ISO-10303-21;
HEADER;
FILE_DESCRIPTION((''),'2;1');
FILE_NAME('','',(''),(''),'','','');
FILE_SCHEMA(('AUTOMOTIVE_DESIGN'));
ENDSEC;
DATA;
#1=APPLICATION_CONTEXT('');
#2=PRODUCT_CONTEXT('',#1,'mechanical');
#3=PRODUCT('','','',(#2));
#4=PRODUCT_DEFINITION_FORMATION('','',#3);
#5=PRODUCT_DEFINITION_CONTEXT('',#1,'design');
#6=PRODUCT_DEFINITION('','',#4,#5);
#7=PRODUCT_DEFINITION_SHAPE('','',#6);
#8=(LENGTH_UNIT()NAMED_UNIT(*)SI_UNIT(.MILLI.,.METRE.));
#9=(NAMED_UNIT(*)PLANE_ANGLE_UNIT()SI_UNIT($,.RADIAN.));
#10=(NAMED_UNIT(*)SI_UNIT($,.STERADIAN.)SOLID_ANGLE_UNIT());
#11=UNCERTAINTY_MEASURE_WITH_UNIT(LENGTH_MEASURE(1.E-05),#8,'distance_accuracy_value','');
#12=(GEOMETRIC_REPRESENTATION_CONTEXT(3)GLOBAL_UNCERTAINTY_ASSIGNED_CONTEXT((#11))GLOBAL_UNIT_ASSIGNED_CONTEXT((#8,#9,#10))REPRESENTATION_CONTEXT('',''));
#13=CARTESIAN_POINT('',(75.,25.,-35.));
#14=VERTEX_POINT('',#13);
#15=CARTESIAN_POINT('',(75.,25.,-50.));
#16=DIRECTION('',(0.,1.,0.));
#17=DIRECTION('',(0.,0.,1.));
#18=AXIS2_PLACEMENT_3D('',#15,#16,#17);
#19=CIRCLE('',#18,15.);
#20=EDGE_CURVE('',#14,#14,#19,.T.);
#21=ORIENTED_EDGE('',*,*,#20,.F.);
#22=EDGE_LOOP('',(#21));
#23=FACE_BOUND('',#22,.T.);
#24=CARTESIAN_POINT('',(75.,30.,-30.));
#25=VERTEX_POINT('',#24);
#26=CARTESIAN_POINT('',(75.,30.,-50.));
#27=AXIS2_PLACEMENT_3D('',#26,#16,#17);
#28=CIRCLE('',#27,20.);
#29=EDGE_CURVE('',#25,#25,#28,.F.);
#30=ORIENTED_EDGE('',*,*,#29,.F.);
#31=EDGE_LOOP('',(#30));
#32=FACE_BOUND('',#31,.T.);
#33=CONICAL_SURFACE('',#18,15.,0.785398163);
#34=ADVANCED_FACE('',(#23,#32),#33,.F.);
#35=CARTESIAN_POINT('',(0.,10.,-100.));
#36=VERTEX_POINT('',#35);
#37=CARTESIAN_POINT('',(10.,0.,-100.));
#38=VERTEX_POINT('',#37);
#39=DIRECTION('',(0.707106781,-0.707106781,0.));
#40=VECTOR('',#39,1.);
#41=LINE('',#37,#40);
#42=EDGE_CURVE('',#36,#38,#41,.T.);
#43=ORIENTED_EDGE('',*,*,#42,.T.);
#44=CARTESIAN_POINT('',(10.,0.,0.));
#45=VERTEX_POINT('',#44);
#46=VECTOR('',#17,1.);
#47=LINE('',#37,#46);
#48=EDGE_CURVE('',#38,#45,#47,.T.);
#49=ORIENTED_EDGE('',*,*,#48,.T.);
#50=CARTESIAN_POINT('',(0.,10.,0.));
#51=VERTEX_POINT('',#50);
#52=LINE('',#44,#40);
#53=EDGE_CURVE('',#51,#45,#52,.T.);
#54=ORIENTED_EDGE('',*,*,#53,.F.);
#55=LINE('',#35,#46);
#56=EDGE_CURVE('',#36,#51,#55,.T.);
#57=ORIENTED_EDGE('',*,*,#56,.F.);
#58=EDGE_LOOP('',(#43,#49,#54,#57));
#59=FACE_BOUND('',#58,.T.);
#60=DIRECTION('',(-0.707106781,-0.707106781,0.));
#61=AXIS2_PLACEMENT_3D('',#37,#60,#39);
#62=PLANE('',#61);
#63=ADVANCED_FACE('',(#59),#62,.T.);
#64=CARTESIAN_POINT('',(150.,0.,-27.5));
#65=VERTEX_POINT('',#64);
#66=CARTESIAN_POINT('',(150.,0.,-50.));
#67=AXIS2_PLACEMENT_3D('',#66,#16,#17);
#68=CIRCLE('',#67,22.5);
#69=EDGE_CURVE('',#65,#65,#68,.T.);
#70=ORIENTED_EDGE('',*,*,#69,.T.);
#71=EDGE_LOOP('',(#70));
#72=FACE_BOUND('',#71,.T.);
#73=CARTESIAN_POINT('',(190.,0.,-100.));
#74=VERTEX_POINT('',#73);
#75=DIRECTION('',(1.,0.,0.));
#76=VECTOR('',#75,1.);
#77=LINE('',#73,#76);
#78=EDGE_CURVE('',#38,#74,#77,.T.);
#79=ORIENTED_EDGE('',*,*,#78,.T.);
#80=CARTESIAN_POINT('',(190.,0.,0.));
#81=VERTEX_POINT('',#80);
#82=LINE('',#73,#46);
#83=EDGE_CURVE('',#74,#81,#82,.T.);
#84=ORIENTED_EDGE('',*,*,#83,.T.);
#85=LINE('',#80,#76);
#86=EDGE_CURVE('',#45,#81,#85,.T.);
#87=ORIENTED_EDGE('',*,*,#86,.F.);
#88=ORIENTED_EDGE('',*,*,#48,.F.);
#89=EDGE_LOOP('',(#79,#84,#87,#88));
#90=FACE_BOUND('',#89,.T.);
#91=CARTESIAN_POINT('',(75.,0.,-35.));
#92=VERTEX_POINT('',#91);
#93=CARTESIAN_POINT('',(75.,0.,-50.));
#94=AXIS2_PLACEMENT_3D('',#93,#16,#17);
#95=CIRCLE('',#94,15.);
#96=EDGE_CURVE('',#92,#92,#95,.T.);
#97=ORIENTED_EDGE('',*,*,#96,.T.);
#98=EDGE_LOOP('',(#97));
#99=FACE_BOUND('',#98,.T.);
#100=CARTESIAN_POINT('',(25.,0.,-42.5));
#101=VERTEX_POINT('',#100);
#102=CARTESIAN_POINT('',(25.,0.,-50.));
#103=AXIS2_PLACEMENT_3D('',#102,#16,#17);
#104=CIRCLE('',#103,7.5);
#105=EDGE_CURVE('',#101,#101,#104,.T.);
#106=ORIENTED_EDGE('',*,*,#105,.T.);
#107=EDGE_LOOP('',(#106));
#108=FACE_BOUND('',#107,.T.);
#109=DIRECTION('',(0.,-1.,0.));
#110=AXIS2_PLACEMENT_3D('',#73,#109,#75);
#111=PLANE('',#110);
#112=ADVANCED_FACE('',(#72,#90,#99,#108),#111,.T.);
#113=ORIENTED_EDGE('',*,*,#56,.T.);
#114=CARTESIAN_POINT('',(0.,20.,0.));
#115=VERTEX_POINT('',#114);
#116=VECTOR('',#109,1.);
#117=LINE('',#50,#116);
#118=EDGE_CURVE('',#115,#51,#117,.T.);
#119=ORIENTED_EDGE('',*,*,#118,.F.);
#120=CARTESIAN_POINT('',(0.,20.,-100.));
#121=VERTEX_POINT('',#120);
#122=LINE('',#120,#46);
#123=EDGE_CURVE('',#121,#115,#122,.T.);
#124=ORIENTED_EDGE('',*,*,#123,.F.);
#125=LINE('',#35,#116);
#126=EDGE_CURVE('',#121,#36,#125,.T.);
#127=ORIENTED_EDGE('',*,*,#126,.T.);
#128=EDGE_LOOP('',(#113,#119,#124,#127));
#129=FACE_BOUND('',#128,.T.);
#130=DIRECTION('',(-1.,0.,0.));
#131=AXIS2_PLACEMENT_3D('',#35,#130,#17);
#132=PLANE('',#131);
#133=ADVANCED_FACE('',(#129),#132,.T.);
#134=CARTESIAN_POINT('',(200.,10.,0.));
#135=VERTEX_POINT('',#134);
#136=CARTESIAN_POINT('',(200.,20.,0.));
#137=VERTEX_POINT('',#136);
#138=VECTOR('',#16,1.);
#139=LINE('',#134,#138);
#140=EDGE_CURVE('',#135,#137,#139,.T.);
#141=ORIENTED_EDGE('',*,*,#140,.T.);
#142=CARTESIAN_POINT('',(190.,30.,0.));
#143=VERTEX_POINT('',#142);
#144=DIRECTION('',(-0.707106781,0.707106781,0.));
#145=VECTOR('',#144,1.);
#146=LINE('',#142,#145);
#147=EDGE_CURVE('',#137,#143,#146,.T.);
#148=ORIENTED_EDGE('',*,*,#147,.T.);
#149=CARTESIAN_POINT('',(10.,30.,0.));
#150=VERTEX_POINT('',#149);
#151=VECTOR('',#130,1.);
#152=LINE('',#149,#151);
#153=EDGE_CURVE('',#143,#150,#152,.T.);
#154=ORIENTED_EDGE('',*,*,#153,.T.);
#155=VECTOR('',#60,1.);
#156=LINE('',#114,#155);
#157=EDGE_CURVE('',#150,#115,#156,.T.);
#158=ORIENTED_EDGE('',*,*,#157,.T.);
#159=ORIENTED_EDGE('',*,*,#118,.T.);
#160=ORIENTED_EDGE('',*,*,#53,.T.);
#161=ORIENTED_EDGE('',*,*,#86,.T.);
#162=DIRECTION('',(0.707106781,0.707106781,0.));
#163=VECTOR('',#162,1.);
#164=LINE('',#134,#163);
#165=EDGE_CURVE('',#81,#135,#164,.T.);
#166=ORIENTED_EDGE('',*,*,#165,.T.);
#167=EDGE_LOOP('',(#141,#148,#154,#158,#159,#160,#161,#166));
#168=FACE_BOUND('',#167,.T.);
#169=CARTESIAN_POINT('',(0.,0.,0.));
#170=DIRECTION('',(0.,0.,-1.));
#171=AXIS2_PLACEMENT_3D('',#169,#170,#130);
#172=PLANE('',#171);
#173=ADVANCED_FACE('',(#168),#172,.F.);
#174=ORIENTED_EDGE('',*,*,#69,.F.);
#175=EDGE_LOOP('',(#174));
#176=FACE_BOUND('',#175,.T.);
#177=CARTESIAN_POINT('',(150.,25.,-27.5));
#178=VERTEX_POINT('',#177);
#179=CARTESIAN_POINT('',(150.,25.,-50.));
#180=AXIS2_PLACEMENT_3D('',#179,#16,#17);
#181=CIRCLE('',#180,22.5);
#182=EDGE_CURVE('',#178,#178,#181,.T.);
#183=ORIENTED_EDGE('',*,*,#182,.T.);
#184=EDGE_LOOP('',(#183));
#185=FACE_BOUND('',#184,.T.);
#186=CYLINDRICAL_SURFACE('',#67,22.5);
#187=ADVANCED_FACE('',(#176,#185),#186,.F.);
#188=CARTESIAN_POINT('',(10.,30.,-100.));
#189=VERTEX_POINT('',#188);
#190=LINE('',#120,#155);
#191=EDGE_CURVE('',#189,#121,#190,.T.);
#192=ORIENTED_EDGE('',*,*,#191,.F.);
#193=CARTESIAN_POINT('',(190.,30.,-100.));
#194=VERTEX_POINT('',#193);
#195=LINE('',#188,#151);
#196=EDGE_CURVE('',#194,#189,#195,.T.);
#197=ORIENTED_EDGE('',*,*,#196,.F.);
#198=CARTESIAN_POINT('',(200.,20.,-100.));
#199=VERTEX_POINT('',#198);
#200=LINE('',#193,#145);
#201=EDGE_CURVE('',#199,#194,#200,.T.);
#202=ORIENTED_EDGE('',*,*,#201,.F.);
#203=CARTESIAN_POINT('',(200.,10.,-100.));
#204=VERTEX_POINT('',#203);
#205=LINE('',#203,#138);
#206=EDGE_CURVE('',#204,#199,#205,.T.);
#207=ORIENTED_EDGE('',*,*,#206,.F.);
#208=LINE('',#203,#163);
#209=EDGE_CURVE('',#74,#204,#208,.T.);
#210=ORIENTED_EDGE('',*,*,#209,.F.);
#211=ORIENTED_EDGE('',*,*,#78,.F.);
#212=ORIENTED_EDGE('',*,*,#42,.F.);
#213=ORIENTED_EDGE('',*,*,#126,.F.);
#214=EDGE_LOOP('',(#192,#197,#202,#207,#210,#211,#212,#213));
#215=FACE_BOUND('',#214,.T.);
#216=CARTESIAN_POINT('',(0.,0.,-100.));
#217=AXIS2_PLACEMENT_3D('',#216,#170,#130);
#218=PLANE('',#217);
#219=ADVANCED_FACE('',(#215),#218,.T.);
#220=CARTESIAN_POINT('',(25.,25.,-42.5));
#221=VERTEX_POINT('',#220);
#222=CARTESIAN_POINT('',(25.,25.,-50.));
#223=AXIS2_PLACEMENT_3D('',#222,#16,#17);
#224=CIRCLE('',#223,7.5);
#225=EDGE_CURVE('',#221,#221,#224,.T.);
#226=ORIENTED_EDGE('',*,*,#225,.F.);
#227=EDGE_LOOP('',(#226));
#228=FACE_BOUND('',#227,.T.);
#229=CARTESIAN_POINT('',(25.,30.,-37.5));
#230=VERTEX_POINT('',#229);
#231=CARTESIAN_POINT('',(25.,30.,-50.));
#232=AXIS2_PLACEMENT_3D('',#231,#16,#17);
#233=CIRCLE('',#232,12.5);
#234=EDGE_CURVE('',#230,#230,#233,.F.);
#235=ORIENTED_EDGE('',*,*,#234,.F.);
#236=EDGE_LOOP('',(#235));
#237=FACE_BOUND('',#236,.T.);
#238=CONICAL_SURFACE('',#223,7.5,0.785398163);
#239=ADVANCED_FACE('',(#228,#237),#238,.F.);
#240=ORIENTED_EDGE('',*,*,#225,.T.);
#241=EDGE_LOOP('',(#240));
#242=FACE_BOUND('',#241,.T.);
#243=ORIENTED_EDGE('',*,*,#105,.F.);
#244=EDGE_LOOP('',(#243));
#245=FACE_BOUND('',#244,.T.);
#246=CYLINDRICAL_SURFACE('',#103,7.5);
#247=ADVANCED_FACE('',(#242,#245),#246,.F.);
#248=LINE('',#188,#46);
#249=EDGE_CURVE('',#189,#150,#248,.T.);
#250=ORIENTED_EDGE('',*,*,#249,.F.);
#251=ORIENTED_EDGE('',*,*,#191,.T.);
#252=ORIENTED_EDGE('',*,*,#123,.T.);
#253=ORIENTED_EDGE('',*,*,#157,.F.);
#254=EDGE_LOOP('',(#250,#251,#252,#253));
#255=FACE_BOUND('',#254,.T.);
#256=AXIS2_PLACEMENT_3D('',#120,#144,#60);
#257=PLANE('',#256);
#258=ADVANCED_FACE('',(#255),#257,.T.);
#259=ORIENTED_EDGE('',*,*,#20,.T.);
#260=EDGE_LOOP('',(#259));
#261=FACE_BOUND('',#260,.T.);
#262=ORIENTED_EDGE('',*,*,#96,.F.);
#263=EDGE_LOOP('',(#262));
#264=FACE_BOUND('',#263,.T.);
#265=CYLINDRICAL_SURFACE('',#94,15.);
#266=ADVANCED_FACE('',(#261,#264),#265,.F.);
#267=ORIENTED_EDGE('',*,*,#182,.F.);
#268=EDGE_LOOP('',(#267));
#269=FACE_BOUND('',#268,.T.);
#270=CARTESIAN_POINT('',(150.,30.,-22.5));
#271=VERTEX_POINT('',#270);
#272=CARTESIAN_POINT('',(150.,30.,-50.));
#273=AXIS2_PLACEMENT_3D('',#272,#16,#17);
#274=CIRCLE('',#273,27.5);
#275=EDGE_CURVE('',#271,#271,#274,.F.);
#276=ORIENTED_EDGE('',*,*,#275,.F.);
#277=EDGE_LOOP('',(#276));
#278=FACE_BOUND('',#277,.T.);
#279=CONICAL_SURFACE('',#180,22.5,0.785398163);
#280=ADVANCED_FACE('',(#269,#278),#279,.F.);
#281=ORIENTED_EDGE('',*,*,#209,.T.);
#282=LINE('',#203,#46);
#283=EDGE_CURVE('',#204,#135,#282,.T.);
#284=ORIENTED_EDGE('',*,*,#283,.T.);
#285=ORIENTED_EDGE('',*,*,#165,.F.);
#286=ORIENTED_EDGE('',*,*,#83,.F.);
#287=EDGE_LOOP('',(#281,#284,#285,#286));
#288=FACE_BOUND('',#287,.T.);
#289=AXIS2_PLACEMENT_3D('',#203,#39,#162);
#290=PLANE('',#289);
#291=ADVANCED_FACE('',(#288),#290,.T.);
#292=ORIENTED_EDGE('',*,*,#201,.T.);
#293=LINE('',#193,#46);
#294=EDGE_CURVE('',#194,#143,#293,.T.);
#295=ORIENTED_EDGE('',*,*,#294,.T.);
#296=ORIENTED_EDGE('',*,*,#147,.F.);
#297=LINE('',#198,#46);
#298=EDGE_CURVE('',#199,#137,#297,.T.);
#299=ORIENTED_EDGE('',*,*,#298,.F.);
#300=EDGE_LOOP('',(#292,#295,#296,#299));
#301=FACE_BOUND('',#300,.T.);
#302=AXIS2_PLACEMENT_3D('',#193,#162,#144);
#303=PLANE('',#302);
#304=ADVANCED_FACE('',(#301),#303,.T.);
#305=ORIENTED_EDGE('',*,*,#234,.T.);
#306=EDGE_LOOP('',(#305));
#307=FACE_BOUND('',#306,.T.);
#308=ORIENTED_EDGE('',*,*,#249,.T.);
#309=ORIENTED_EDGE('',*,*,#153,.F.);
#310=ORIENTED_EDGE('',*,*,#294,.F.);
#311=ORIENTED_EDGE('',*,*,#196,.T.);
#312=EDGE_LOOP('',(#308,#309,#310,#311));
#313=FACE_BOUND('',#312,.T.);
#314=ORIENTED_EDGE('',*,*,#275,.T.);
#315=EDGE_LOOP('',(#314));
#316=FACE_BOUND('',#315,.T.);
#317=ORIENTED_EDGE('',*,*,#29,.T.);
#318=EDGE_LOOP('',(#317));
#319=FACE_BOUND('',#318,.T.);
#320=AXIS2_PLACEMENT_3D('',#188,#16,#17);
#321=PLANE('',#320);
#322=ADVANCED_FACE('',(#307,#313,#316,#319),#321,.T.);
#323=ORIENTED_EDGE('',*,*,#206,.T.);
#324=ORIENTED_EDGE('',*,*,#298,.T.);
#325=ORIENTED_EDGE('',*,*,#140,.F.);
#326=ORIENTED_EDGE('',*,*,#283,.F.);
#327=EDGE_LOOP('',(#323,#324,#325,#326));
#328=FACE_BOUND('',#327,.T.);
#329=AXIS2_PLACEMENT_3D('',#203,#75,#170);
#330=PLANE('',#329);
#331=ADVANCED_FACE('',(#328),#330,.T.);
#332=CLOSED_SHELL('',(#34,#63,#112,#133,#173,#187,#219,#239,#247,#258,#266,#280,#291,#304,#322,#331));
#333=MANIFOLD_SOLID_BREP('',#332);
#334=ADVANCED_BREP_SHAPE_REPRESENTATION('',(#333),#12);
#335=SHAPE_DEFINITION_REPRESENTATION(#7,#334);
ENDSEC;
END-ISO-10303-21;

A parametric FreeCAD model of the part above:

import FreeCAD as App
import Part
import Sketcher

V = App.Vector


def edges_at(feature, points):
    """Names of the edges that pass closest to the given points."""
    edges = feature.Shape.Edges
    near = lambda p: min(range(len(edges)), key=lambda i: edges[i].distToShape(Part.Vertex(*p))[0])
    return sorted({f"Edge{near(p) + 1}" for p in points})

doc = App.newDocument("Part")
body = doc.addObject("PartDesign::Body", "Body")

# Sketch on XY plane
sketch1 = doc.addObject("Sketcher::SketchObject", "Sketch")
body.addObject(sketch1)
sketch1.AttachmentSupport = (doc.XY_Plane, [""])
sketch1.MapMode = "FlatFace"
sketch1.addGeometry([
    Part.LineSegment(V(190, 30, 0), V(10, 30, 0)),  # 0
    Part.LineSegment(V(10, 30, 0), V(0, 20, 0)),  # 1
    Part.LineSegment(V(0, 20, 0), V(0, 10, 0)),  # 2
    Part.LineSegment(V(0, 10, 0), V(10, 0, 0)),  # 3
    Part.LineSegment(V(10, 0, 0), V(190, 0, 0)),  # 4
    Part.LineSegment(V(190, 0, 0), V(200, 10, 0)),  # 5
    Part.LineSegment(V(200, 10, 0), V(200, 20, 0)),  # 6
    Part.LineSegment(V(200, 20, 0), V(190, 30, 0)),  # 7
], False)
sketch1.addConstraint([
    Sketcher.Constraint("Coincident", 0, 2, 1, 1),
    Sketcher.Constraint("Coincident", 1, 2, 2, 1),
    Sketcher.Constraint("Coincident", 2, 2, 3, 1),
    Sketcher.Constraint("Coincident", 3, 2, 4, 1),
    Sketcher.Constraint("Coincident", 4, 2, 5, 1),
    Sketcher.Constraint("Coincident", 5, 2, 6, 1),
    Sketcher.Constraint("Coincident", 6, 2, 7, 1),
    Sketcher.Constraint("Coincident", 7, 2, 0, 1),
    Sketcher.Constraint("Horizontal", 0),
    Sketcher.Constraint("Vertical", 2),
    Sketcher.Constraint("Horizontal", 4),
    Sketcher.Constraint("Vertical", 6),
    Sketcher.Constraint("PointOnObject", 1, 2, -2),
    Sketcher.Constraint("PointOnObject", 3, 2, -1),
    Sketcher.Constraint("Perpendicular", 1, 3),
    Sketcher.Constraint("Perpendicular", 3, 5),
    Sketcher.Constraint("Perpendicular", 5, 7),
    Sketcher.Constraint("Horizontal", 2, 2, 5, 2),
    Sketcher.Constraint("Horizontal", 1, 2, 6, 2),
    Sketcher.Constraint("Vertical", 0, 2, 3, 2),
    Sketcher.Constraint("Vertical", 4, 2, 7, 2),
    Sketcher.Constraint("DistanceX", 0, 2, 0, 1, 180.0),
    Sketcher.Constraint("DistanceY", 2, 2, 2, 1, 10.0),
    Sketcher.Constraint("DistanceX", -1, 1, 0, 2, 10.0),
])
pad1 = doc.addObject("PartDesign::Pad", "Pad")
body.addObject(pad1)
pad1.Profile = sketch1
pad1.Length = 100
pad1.Reversed = True

# Sketch on XZ plane
sketch2 = doc.addObject("Sketcher::SketchObject", "Sketch001")
body.addObject(sketch2)
sketch2.AttachmentSupport = (doc.XZ_Plane, [""])
sketch2.MapMode = "FlatFace"
sketch2.AttachmentOffset = App.Placement(V(0, 0, -30), App.Rotation())
sketch2.addGeometry([
    Part.Circle(V(25, -50, 0), V(0, 0, 1), 7.5),
    Part.Circle(V(75, -50, 0), V(0, 0, 1), 15),
    Part.Circle(V(150, -50, 0), V(0, 0, 1), 22.5),
], False)
sketch2.addConstraint([
    Sketcher.Constraint("Horizontal", 0, 3, 1, 3),
    Sketcher.Constraint("Horizontal", 1, 3, 2, 3),
    Sketcher.Constraint("Diameter", 0, 15.0),
    Sketcher.Constraint("Diameter", 1, 30.0),
    Sketcher.Constraint("Diameter", 2, 45.0),
    Sketcher.Constraint("DistanceX", -1, 1, 0, 3, 25.0),
    Sketcher.Constraint("DistanceY", 0, 3, -1, 1, 50.0),
    Sketcher.Constraint("DistanceX", -1, 1, 1, 3, 75.0),
    Sketcher.Constraint("DistanceX", -1, 1, 2, 3, 150.0),
])
pocket1 = doc.addObject("PartDesign::Pocket", "Pocket")
body.addObject(pocket1)
pocket1.Profile = sketch2
pocket1.Type = "ThroughAll"
pocket1.Reversed = True
doc.recompute()

chamfer = doc.addObject("PartDesign::Chamfer", "Chamfer")
body.addObject(chamfer)
chamfer.Base = (pocket1, edges_at(pocket1, [(25, 30, -57.5), (75, 30, -65), (150, 30, -72.5)]))
chamfer.Size = 5

doc.recompute()
